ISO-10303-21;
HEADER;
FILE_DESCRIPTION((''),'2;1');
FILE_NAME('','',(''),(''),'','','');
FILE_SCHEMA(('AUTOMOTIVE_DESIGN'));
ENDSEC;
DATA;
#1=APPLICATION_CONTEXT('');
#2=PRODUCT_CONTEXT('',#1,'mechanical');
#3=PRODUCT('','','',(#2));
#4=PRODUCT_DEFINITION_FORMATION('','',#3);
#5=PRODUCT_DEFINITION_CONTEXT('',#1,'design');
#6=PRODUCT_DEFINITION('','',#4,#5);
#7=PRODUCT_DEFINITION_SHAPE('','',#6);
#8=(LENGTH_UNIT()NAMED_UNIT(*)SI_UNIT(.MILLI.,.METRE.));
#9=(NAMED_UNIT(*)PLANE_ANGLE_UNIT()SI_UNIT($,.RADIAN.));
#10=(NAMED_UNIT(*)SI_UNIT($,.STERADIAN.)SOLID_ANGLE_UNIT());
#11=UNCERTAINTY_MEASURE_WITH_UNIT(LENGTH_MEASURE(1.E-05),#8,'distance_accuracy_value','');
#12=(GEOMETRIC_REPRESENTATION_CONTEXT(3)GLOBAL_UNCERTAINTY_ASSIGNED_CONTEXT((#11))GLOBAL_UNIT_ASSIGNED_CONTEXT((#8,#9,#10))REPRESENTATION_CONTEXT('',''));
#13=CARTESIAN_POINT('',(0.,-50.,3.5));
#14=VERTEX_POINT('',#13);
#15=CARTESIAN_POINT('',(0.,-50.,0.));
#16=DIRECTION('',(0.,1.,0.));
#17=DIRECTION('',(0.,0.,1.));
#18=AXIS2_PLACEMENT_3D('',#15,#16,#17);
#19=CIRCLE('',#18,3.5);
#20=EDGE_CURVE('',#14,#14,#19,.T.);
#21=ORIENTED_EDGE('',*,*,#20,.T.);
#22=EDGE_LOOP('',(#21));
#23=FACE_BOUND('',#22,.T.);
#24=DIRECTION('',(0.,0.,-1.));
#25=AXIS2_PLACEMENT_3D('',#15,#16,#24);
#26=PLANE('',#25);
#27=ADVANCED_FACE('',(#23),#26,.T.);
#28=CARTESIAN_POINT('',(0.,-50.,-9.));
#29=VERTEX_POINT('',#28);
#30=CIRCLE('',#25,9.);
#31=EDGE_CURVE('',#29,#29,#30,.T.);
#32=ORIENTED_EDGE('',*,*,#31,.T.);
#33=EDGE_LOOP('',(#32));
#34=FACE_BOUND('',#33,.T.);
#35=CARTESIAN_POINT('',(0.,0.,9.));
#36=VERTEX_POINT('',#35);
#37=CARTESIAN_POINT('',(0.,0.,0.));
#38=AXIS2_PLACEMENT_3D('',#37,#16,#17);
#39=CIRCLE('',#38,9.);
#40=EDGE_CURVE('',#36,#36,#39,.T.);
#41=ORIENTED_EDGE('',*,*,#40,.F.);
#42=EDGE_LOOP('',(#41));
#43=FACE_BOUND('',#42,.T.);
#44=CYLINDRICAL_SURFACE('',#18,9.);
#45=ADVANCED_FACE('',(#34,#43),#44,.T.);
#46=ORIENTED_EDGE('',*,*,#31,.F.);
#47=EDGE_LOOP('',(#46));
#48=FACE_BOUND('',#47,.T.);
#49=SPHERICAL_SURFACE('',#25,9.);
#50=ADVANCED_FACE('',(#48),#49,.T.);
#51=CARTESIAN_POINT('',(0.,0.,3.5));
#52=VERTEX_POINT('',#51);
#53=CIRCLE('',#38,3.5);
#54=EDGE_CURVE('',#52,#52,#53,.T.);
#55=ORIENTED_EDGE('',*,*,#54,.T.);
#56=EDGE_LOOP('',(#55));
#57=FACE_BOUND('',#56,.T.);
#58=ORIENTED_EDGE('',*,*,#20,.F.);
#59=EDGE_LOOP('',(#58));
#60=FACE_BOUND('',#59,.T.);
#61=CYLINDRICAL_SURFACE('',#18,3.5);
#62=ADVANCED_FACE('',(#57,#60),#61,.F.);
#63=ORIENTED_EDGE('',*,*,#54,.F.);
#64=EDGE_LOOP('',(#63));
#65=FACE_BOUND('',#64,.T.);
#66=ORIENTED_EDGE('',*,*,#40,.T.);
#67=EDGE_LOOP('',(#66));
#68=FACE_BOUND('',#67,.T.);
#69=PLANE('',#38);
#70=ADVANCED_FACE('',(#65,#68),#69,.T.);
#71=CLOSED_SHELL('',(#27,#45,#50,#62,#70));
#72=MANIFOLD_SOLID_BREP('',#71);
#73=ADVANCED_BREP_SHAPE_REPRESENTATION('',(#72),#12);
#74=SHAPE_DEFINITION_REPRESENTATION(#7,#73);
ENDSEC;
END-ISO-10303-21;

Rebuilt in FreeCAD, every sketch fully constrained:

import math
import FreeCAD as App
import Part
import Sketcher

V = App.Vector

doc = App.newDocument("Part")
body = doc.addObject("PartDesign::Body", "Body")

# Sketch on XZ plane
sketch1 = body.newObject("Sketcher::SketchObject", "Sketch")
sketch1.AttachmentSupport = (doc.getObject("XZ_Plane"), [""])
sketch1.MapMode = "FlatFace"
sketch1.addGeometry([
    Part.Circle(V(0, 0, 0), V(0, 0, 1), 9),
    Part.Circle(V(0, 0, 0), V(0, 0, 1), 3.5),
], False)
sketch1.addConstraint([
    Sketcher.Constraint("Coincident", 0, 3, -1, 1),
    Sketcher.Constraint("Coincident", 1, 3, -1, 1),
    Sketcher.Constraint("Diameter", 0, 18.0),
    Sketcher.Constraint("Diameter", 1, 7.0),
])
pad1 = body.newObject("PartDesign::Pad", "Pad")
pad1.Profile = sketch1
pad1.Length = 50

# Sketch on XZ plane
sketch2 = body.newObject("Sketcher::SketchObject", "Sketch001")
sketch2.AttachmentSupport = (doc.getObject("XZ_Plane"), [""])
sketch2.MapMode = "FlatFace"
sketch2.AttachmentOffset = App.Placement(V(0, 0, 50), App.Rotation())
sketch2.addGeometry([
    Part.LineSegment(V(0, 9, 0), V(0, -9, 0)),
    Part.ArcOfCircle(Part.Circle(V(0, 0, 0), V(0, 0, 1), 9), math.radians(-90), math.radians(90)),
], False)
sketch2.addConstraint([
    Sketcher.Constraint("Coincident", 0, 1, 1, 2),
    Sketcher.Constraint("Coincident", 1, 1, 0, 2),
    Sketcher.Constraint("Vertical", 0),
    Sketcher.Constraint("Coincident", 1, 3, -1, 1),
    Sketcher.Constraint("PointOnObject", 0, 1, -2),
    Sketcher.Constraint("Radius", 1, 9.0),
])
revolution = body.newObject("PartDesign::Revolution", "Revolution")
revolution.Profile = sketch2
revolution.ReferenceAxis = (sketch2, ["V_Axis"])
revolution.Angle = 180
revolution.Reversed = True

doc.recompute()
